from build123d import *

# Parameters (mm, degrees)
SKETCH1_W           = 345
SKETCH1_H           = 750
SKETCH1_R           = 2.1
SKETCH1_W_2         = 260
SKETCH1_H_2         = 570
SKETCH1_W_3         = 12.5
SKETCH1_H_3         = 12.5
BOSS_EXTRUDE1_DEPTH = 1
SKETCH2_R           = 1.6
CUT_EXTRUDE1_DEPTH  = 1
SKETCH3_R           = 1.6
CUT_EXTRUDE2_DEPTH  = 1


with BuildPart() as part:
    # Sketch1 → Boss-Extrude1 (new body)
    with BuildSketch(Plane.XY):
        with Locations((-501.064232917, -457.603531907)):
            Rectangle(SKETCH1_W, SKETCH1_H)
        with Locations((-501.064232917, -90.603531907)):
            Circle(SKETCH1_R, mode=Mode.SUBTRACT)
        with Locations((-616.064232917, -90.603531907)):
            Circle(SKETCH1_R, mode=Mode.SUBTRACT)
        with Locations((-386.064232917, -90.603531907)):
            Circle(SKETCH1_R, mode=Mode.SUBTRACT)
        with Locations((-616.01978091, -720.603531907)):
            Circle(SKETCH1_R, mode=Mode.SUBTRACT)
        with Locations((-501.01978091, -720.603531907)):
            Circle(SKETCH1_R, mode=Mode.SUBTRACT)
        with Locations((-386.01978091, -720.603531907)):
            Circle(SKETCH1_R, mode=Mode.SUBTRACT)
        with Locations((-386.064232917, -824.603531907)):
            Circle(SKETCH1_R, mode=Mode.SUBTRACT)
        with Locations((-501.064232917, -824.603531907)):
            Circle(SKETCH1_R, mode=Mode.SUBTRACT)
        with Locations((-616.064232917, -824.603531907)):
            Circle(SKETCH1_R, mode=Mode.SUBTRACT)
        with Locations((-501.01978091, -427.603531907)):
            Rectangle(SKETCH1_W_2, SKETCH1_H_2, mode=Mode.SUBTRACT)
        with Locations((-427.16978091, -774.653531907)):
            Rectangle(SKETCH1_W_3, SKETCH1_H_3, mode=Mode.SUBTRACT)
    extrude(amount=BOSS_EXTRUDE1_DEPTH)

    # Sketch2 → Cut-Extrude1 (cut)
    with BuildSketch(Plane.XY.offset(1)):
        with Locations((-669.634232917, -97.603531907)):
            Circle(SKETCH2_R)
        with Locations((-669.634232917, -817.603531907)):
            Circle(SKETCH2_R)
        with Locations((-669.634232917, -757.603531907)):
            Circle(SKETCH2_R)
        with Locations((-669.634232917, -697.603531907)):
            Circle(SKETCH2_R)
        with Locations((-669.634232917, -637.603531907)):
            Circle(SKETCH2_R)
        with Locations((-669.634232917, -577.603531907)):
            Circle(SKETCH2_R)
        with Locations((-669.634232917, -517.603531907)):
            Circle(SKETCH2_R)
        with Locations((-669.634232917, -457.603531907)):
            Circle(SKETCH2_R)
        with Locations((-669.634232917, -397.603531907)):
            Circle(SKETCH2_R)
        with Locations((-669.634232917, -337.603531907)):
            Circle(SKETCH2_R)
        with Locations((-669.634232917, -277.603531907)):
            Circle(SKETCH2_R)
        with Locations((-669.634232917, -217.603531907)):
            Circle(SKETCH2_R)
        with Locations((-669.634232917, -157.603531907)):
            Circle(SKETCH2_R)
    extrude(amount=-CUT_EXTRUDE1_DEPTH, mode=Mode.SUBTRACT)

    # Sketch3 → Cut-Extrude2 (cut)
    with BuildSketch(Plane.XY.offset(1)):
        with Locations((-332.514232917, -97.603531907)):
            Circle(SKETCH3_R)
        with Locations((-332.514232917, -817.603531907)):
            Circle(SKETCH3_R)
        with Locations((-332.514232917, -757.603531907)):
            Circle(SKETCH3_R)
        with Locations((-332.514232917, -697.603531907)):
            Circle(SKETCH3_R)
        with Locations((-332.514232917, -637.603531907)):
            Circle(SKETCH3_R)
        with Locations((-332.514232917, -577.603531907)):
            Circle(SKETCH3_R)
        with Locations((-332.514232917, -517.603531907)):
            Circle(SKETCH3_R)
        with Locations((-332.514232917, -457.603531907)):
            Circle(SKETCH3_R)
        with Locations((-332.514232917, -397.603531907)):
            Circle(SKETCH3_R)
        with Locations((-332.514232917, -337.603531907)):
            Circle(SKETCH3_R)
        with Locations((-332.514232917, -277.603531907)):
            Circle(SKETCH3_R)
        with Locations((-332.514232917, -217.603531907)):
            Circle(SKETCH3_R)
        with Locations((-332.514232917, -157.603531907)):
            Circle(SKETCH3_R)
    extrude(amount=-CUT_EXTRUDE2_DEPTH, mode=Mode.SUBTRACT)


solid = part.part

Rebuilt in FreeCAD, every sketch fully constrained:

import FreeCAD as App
import Part
import Sketcher

V = App.Vector
Q = App.Units.Quantity

doc = App.newDocument("Part")
body = doc.addObject("PartDesign::Body", "Body")

# Sketch on XY plane
sketch1 = body.newObject("Sketcher::SketchObject", "Sketch")
sketch1.AttachmentSupport = (doc.getObject("XY_Plane"), [""])
sketch1.MapMode = "FlatFace"
sketch1.addGeometry([
    Part.LineSegment(V(-673.6, -82.6, 0), V(-673.6, -832.6, 0)),  # 0
    Part.LineSegment(V(-673.6, -832.6, 0), V(-328.6, -832.6, 0)),  # 1
    Part.LineSegment(V(-328.6, -832.6, 0), V(-328.6, -82.6, 0)),  # 2
    Part.LineSegment(V(-328.6, -82.6, 0), V(-673.6, -82.6, 0)),  # 3
    Part.Circle(V(-616.1, -824.6, 0), V(0, 0, 1), 2.1),  # 4
    Part.Circle(V(-616, -720.6, 0), V(0, 0, 1), 2.1),  # 5
    Part.Circle(V(-501.1, -824.6, 0), V(0, 0, 1), 2.1),  # 6
    Part.Circle(V(-501, -720.6, 0), V(0, 0, 1), 2.1),  # 7
    Part.LineSegment(V(-420.9, -780.9, 0), V(-433.4, -780.9, 0)),  # 8
    Part.LineSegment(V(-433.4, -780.9, 0), V(-433.4, -768.4, 0)),  # 9
    Part.LineSegment(V(-433.4, -768.4, 0), V(-420.9, -768.4, 0)),  # 10
    Part.LineSegment(V(-420.9, -768.4, 0), V(-420.9, -780.9, 0)),  # 11
    Part.Circle(V(-386.1, -824.6, 0), V(0, 0, 1), 2.1),  # 12
    Part.Circle(V(-386, -720.6, 0), V(0, 0, 1), 2.1),  # 13
    Part.Circle(V(-616.1, -90.6, 0), V(0, 0, 1), 2.1),  # 14
    Part.Circle(V(-501.1, -90.6, 0), V(0, 0, 1), 2.1),  # 15
    Part.LineSegment(V(-371, -712.6, 0), V(-631, -712.6, 0)),  # 16
    Part.LineSegment(V(-631, -712.6, 0), V(-631, -142.6, 0)),  # 17
    Part.LineSegment(V(-631, -142.6, 0), V(-371, -142.6, 0)),  # 18
    Part.LineSegment(V(-371, -142.6, 0), V(-371, -712.6, 0)),  # 19
    Part.Circle(V(-386.1, -90.6, 0), V(0, 0, 1), 2.1),  # 20
], False)
sketch1.addConstraint([
    Sketcher.Constraint("Coincident", 0, 2, 1, 1),
    Sketcher.Constraint("Coincident", 1, 2, 2, 1),
    Sketcher.Constraint("Coincident", 2, 2, 3, 1),
    Sketcher.Constraint("Coincident", 3, 2, 0, 1),
    Sketcher.Constraint("Coincident", 8, 2, 9, 1),
    Sketcher.Constraint("Coincident", 9, 2, 10, 1),
    Sketcher.Constraint("Coincident", 10, 2, 11, 1),
    Sketcher.Constraint("Coincident", 11, 2, 8, 1),
    Sketcher.Constraint("Coincident", 16, 2, 17, 1),
    Sketcher.Constraint("Coincident", 17, 2, 18, 1),
    Sketcher.Constraint("Coincident", 18, 2, 19, 1),
    Sketcher.Constraint("Coincident", 19, 2, 16, 1),
    Sketcher.Constraint("Vertical", 0),
    Sketcher.Constraint("Horizontal", 1),
    Sketcher.Constraint("Vertical", 2),
    Sketcher.Constraint("Horizontal", 3),
    Sketcher.Constraint("Horizontal", 8),
    Sketcher.Constraint("Vertical", 9),
    Sketcher.Constraint("Horizontal", 10),
    Sketcher.Constraint("Vertical", 11),
    Sketcher.Constraint("Horizontal", 16),
    Sketcher.Constraint("Vertical", 17),
    Sketcher.Constraint("Horizontal", 18),
    Sketcher.Constraint("Vertical", 19),
    Sketcher.Constraint("Equal", 4, 5),
    Sketcher.Constraint("Equal", 5, 6),
    Sketcher.Constraint("Equal", 6, 7),
    Sketcher.Constraint("Equal", 7, 12),
    Sketcher.Constraint("Equal", 12, 13),
    Sketcher.Constraint("Equal", 13, 14),
    Sketcher.Constraint("Equal", 14, 15),
    Sketcher.Constraint("Equal", 15, 20),
    Sketcher.Constraint("Horizontal", 4, 3, 6, 3),
    Sketcher.Constraint("Horizontal", 5, 3, 7, 3),
    Sketcher.Constraint("Horizontal", 6, 3, 12, 3),
    Sketcher.Constraint("Horizontal", 7, 3, 13, 3),
    Sketcher.Constraint("Horizontal", 14, 3, 15, 3),
    Sketcher.Constraint("Horizontal", 15, 3, 20, 3),
    Sketcher.Constraint("Vertical", 4, 3, 14, 3),
    Sketcher.Constraint("Vertical", 6, 3, 15, 3),
    Sketcher.Constraint("Vertical", 12, 3, 20, 3),
    Sketcher.Constraint("Equal", 10, 9),
    Sketcher.Constraint("Diameter", 4, Q("4.2 mm")),
    Sketcher.Constraint("DistanceX", 1, 1, 1, 2, Q("345 mm")),
    Sketcher.Constraint("DistanceX", 16, 2, 16, 1, Q("260 mm")),
    Sketcher.Constraint("DistanceY", 0, 2, 0, 1, Q("750 mm")),
    Sketcher.Constraint("DistanceY", 17, 1, 17, 2, Q("570 mm")),
    Sketcher.Constraint("DistanceX", 8, 2, 8, 1, Q("12.5 mm")),
    Sketcher.Constraint("DistanceY", 4, 3, 5, 3, Q("104 mm")),
    Sketcher.Constraint("DistanceX", 4, 3, 6, 3, Q("115 mm")),
    Sketcher.Constraint("DistanceX", 5, 3, 7, 3, Q("115 mm")),
    Sketcher.Constraint("DistanceX", 6, 3, 12, 3, Q("115 mm")),
    Sketcher.Constraint("DistanceX", 7, 3, 13, 3, Q("115 mm")),
    Sketcher.Constraint("DistanceY", 5, 3, 14, 3, Q("630 mm")),
    Sketcher.Constraint("DistanceY", 0, 2, 4, 3, Q("8 mm")),
    Sketcher.Constraint("DistanceX", 16, 2, 5, 3, Q("15 mm")),
    Sketcher.Constraint("DistanceY", 5, 3, 16, 2, Q("8 mm")),
    Sketcher.Constraint("DistanceX", 0, 2, 4, 3, Q("57.5 mm")),
    Sketcher.Constraint("DistanceY", 12, 3, 8, 2, Q("43.7 mm")),
    Sketcher.Constraint("DistanceX", 8, 2, 13, 3, Q("47.4 mm")),
    Sketcher.Constraint("DistanceY", 4, 3, -1, 1, Q("824.603532 mm")),
    Sketcher.Constraint("DistanceX", 5, 3, -1, 1, Q("616.019781 mm")),
    Sketcher.Constraint("DistanceX", 4, 3, -1, 1, Q("616.064233 mm")),
])
pad1 = body.newObject("PartDesign::Pad", "Pad")
pad1.Profile = sketch1
pad1.Length = 1

# Sketch on XY plane
sketch2 = body.newObject("Sketcher::SketchObject", "Sketch001")
sketch2.AttachmentSupport = (doc.getObject("XY_Plane"), [""])
sketch2.MapMode = "FlatFace"
sketch2.AttachmentOffset = App.Placement(V(0, 0, 1), App.Rotation())
sketch2.addGeometry([
    Part.Circle(V(-669.6, -97.6, 0), V(0, 0, 1), 1.6),  # 0
    Part.Circle(V(-669.6, -817.6, 0), V(0, 0, 1), 1.6),  # 1
    Part.Circle(V(-669.6, -757.6, 0), V(0, 0, 1), 1.6),  # 2
    Part.Circle(V(-669.6, -697.6, 0), V(0, 0, 1), 1.6),  # 3
    Part.Circle(V(-669.6, -637.6, 0), V(0, 0, 1), 1.6),  # 4
    Part.Circle(V(-669.6, -577.6, 0), V(0, 0, 1), 1.6),  # 5
    Part.Circle(V(-669.6, -517.6, 0), V(0, 0, 1), 1.6),  # 6
    Part.Circle(V(-669.6, -457.6, 0), V(0, 0, 1), 1.6),  # 7
    Part.Circle(V(-669.6, -397.6, 0), V(0, 0, 1), 1.6),  # 8
    Part.Circle(V(-669.6, -337.6, 0), V(0, 0, 1), 1.6),  # 9
    Part.Circle(V(-669.6, -277.6, 0), V(0, 0, 1), 1.6),  # 10
    Part.Circle(V(-669.6, -217.6, 0), V(0, 0, 1), 1.6),  # 11
    Part.Circle(V(-669.6, -157.6, 0), V(0, 0, 1), 1.6),  # 12
], False)
sketch2.addConstraint([
    Sketcher.Constraint("Equal", 0, 1),
    Sketcher.Constraint("Equal", 1, 2),
    Sketcher.Constraint("Equal", 2, 3),
    Sketcher.Constraint("Equal", 3, 4),
    Sketcher.Constraint("Equal", 4, 5),
    Sketcher.Constraint("Equal", 5, 6),
    Sketcher.Constraint("Equal", 6, 7),
    Sketcher.Constraint("Equal", 7, 8),
    Sketcher.Constraint("Equal", 8, 9),
    Sketcher.Constraint("Equal", 9, 10),
    Sketcher.Constraint("Equal", 10, 11),
    Sketcher.Constraint("Equal", 11, 12),
    Sketcher.Constraint("Vertical", 0, 3, 1, 3),
    Sketcher.Constraint("Vertical", 1, 3, 2, 3),
    Sketcher.Constraint("Vertical", 2, 3, 3, 3),
    Sketcher.Constraint("Vertical", 3, 3, 4, 3),
    Sketcher.Constraint("Vertical", 4, 3, 5, 3),
    Sketcher.Constraint("Vertical", 5, 3, 6, 3),
    Sketcher.Constraint("Vertical", 6, 3, 7, 3),
    Sketcher.Constraint("Vertical", 7, 3, 8, 3),
    Sketcher.Constraint("Vertical", 8, 3, 9, 3),
    Sketcher.Constraint("Vertical", 9, 3, 10, 3),
    Sketcher.Constraint("Vertical", 10, 3, 11, 3),
    Sketcher.Constraint("Vertical", 11, 3, 12, 3),
    Sketcher.Constraint("Diameter", 0, Q("3.2 mm")),
    Sketcher.Constraint("DistanceY", 1, 3, 0, 3, Q("720 mm")),
    Sketcher.Constraint("DistanceY", 1, 3, 2, 3, Q("60 mm")),
    Sketcher.Constraint("DistanceY", 2, 3, 3, 3, Q("60 mm")),
    Sketcher.Constraint("DistanceY", 3, 3, 4, 3, Q("60 mm")),
    Sketcher.Constraint("DistanceY", 4, 3, 5, 3, Q("60 mm")),
    Sketcher.Constraint("DistanceY", 5, 3, 6, 3, Q("60 mm")),
    Sketcher.Constraint("DistanceY", 6, 3, 7, 3, Q("60 mm")),
    Sketcher.Constraint("DistanceY", 7, 3, 8, 3, Q("60 mm")),
    Sketcher.Constraint("DistanceY", 8, 3, 9, 3, Q("60 mm")),
    Sketcher.Constraint("DistanceY", 9, 3, 10, 3, Q("60 mm")),
    Sketcher.Constraint("DistanceY", 10, 3, 11, 3, Q("60 mm")),
    Sketcher.Constraint("DistanceY", 12, 3, 0, 3, Q("60 mm")),
    Sketcher.Constraint("DistanceY", 0, 3, -1, 1, Q("97.603532 mm")),
    Sketcher.Constraint("DistanceX", 0, 3, -1, 1, Q("669.634233 mm")),
])
pocket1 = body.newObject("PartDesign::Pocket", "Pocket")
pocket1.Profile = sketch2
pocket1.Length = 1

# Sketch on XY plane
sketch3 = body.newObject("Sketcher::SketchObject", "Sketch002")
sketch3.AttachmentSupport = (doc.getObject("XY_Plane"), [""])
sketch3.MapMode = "FlatFace"
sketch3.AttachmentOffset = App.Placement(V(0, 0, 1), App.Rotation())
sketch3.addGeometry([
    Part.Circle(V(-332.5, -97.6, 0), V(0, 0, 1), 1.6),  # 0
    Part.Circle(V(-332.5, -817.6, 0), V(0, 0, 1), 1.6),  # 1
    Part.Circle(V(-332.5, -757.6, 0), V(0, 0, 1), 1.6),  # 2
    Part.Circle(V(-332.5, -697.6, 0), V(0, 0, 1), 1.6),  # 3
    Part.Circle(V(-332.5, -637.6, 0), V(0, 0, 1), 1.6),  # 4
    Part.Circle(V(-332.5, -577.6, 0), V(0, 0, 1), 1.6),  # 5
    Part.Circle(V(-332.5, -517.6, 0), V(0, 0, 1), 1.6),  # 6
    Part.Circle(V(-332.5, -457.6, 0), V(0, 0, 1), 1.6),  # 7
    Part.Circle(V(-332.5, -397.6, 0), V(0, 0, 1), 1.6),  # 8
    Part.Circle(V(-332.5, -337.6, 0), V(0, 0, 1), 1.6),  # 9
    Part.Circle(V(-332.5, -277.6, 0), V(0, 0, 1), 1.6),  # 10
    Part.Circle(V(-332.5, -217.6, 0), V(0, 0, 1), 1.6),  # 11
    Part.Circle(V(-332.5, -157.6, 0), V(0, 0, 1), 1.6),  # 12
], False)
sketch3.addConstraint([
    Sketcher.Constraint("Equal", 0, 1),
    Sketcher.Constraint("Equal", 1, 2),
    Sketcher.Constraint("Equal", 2, 3),
    Sketcher.Constraint("Equal", 3, 4),
    Sketcher.Constraint("Equal", 4, 5),
    Sketcher.Constraint("Equal", 5, 6),
    Sketcher.Constraint("Equal", 6, 7),
    Sketcher.Constraint("Equal", 7, 8),
    Sketcher.Constraint("Equal", 8, 9),
    Sketcher.Constraint("Equal", 9, 10),
    Sketcher.Constraint("Equal", 10, 11),
    Sketcher.Constraint("Equal", 11, 12),
    Sketcher.Constraint("Vertical", 0, 3, 1, 3),
    Sketcher.Constraint("Vertical", 1, 3, 2, 3),
    Sketcher.Constraint("Vertical", 2, 3, 3, 3),
    Sketcher.Constraint("Vertical", 3, 3, 4, 3),
    Sketcher.Constraint("Vertical", 4, 3, 5, 3),
    Sketcher.Constraint("Vertical", 5, 3, 6, 3),
    Sketcher.Constraint("Vertical", 6, 3, 7, 3),
    Sketcher.Constraint("Vertical", 7, 3, 8, 3),
    Sketcher.Constraint("Vertical", 8, 3, 9, 3),
    Sketcher.Constraint("Vertical", 9, 3, 10, 3),
    Sketcher.Constraint("Vertical", 10, 3, 11, 3),
    Sketcher.Constraint("Vertical", 11, 3, 12, 3),
    Sketcher.Constraint("Diameter", 0, Q("3.2 mm")),
    Sketcher.Constraint("DistanceY", 1, 3, 0, 3, Q("720 mm")),
    Sketcher.Constraint("DistanceY", 1, 3, 2, 3, Q("60 mm")),
    Sketcher.Constraint("DistanceY", 2, 3, 3, 3, Q("60 mm")),
    Sketcher.Constraint("DistanceY", 3, 3, 4, 3, Q("60 mm")),
    Sketcher.Constraint("DistanceY", 4, 3, 5, 3, Q("60 mm")),
    Sketcher.Constraint("DistanceY", 5, 3, 6, 3, Q("60 mm")),
    Sketcher.Constraint("DistanceY", 6, 3, 7, 3, Q("60 mm")),
    Sketcher.Constraint("DistanceY", 7, 3, 8, 3, Q("60 mm")),
    Sketcher.Constraint("DistanceY", 8, 3, 9, 3, Q("60 mm")),
    Sketcher.Constraint("DistanceY", 9, 3, 10, 3, Q("60 mm")),
    Sketcher.Constraint("DistanceY", 10, 3, 11, 3, Q("60 mm")),
    Sketcher.Constraint("DistanceY", 12, 3, 0, 3, Q("60 mm")),
    Sketcher.Constraint("DistanceY", 0, 3, -1, 1, Q("97.603532 mm")),
    Sketcher.Constraint("DistanceX", 0, 3, -1, 1, Q("332.514233 mm")),
])
pocket2 = body.newObject("PartDesign::Pocket", "Pocket001")
pocket2.Profile = sketch3
pocket2.Length = 1

doc.recompute()
